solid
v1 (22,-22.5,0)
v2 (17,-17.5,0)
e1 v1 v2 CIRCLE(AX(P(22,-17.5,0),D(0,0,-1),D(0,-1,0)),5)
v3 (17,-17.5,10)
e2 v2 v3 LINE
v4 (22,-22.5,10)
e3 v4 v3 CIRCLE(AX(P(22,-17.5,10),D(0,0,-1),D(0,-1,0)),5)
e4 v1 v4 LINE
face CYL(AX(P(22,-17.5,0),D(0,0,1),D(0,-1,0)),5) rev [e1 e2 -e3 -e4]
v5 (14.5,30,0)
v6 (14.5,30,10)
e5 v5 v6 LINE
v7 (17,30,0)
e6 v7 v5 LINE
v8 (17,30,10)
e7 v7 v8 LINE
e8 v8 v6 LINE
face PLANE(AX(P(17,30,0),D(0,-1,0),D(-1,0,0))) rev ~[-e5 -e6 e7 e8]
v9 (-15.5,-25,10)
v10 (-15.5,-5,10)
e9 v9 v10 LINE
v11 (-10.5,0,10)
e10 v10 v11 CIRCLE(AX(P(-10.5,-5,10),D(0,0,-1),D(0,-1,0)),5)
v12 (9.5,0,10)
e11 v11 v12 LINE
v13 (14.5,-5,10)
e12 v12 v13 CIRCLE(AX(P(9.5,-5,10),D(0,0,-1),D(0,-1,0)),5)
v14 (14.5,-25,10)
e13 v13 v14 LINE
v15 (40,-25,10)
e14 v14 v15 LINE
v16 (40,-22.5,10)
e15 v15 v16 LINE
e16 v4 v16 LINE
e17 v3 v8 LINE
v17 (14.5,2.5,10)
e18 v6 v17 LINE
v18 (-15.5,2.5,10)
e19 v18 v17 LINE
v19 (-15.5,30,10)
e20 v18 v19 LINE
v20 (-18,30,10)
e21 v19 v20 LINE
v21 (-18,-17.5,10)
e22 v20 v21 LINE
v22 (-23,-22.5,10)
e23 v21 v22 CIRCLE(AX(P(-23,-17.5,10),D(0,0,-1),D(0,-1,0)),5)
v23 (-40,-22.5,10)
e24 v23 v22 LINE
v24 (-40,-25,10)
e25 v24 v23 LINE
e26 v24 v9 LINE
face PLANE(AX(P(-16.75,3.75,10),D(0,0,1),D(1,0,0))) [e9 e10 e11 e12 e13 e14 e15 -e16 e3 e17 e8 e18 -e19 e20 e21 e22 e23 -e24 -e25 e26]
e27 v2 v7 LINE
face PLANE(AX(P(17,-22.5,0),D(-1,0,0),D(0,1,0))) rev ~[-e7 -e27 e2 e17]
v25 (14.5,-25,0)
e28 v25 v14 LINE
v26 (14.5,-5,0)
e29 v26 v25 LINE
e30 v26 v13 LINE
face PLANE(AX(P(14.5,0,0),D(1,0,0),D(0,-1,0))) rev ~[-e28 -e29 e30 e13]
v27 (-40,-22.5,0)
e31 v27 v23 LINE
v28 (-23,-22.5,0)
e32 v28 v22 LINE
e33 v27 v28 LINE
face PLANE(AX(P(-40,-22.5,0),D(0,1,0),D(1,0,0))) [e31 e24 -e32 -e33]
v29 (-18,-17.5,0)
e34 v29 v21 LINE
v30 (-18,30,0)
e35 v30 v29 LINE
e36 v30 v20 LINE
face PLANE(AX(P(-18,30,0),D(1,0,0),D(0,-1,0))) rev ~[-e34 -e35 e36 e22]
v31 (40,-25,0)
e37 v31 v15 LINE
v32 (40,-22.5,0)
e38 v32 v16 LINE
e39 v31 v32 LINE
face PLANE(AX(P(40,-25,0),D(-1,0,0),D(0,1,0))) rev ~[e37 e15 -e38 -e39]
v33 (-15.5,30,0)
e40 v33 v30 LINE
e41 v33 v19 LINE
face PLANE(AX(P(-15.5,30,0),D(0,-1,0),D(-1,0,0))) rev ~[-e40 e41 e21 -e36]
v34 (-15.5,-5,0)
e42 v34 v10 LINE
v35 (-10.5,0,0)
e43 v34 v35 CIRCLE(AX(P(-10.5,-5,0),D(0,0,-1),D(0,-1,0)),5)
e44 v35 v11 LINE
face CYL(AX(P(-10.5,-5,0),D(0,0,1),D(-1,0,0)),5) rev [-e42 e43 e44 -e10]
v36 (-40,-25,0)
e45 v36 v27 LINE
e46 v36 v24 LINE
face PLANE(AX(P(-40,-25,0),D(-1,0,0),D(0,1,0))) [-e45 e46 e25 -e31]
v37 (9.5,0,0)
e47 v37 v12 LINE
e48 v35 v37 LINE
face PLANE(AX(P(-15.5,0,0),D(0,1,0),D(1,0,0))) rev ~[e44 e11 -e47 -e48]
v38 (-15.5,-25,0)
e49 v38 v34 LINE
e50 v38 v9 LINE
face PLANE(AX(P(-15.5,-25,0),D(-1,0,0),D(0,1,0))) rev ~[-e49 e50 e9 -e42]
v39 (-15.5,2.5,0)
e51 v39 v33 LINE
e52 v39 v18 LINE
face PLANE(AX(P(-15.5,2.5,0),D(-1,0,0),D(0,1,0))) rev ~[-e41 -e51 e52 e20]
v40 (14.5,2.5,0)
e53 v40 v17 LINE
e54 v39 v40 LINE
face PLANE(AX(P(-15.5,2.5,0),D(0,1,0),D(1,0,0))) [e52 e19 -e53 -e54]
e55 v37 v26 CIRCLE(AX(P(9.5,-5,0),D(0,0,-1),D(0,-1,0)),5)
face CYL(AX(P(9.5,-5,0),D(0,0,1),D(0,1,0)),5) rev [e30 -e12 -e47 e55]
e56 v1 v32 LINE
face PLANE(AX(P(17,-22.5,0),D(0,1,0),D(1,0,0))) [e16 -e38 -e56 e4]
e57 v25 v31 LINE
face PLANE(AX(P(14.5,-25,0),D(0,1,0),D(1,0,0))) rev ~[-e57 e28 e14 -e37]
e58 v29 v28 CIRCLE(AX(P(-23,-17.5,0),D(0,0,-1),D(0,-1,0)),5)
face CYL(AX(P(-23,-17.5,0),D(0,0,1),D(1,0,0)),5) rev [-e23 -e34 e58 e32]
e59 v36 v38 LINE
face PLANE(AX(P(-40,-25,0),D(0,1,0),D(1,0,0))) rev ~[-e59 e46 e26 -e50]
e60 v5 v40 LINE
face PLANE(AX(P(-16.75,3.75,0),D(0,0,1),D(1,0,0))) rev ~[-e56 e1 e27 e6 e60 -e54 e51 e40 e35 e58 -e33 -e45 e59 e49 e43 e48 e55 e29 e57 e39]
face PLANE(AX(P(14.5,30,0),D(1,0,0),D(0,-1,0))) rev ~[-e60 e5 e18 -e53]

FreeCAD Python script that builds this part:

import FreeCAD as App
import Part
import Sketcher


def edges_at(feature, points):
    """Names of the edges that pass closest to the given points."""
    edges = feature.Shape.Edges
    near = lambda p: min(range(len(edges)), key=lambda i: edges[i].distToShape(Part.Vertex(*p))[0])
    return sorted({f"Edge{near(p) + 1}" for p in points})

doc = App.newDocument("Part")
params = doc.addObject("Spreadsheet::Sheet", "Params")
for row, (alias, value) in enumerate([
    ("sketch1_width", "22 mm"),
    ("sketch1_width2", "30 mm"),
    ("sketch1_width3", "23 mm"),
    ("sketch1_height", "25 mm"),
    ("sketch1_width4", "2.5 mm"),
    ("pad1_length", "10 mm"),
    ("fillet_radius", "5 mm"),
], start=1):
    params.set(f"A{row}", alias)
    params.set(f"B{row}", "=" + value)
    params.setAlias(f"B{row}", alias)

body = doc.addObject("PartDesign::Body", "Body")

# Sketch on XY plane
sketch1 = body.newObject("Sketcher::SketchObject", "Sketch")
sketch1.AttachmentSupport = (doc.getObject("XY_Plane"), [""])
sketch1.MapMode = "FlatFace"
sketch1.addGeometry([
    Part.LineSegment(App.Vector(-15.5, 30, 0), App.Vector(-18, 30, 0)),  # 0
    Part.LineSegment(App.Vector(-18, 30, 0), App.Vector(-18, -22.5, 0)),  # 1
    Part.LineSegment(App.Vector(-18, -22.5, 0), App.Vector(-40, -22.5, 0)),  # 2
    Part.LineSegment(App.Vector(-40, -22.5, 0), App.Vector(-40, -25, 0)),  # 3
    Part.LineSegment(App.Vector(-40, -25, 0), App.Vector(-15.5, -25, 0)),  # 4
    Part.LineSegment(App.Vector(-15.5, -25, 0), App.Vector(-15.5, 0, 0)),  # 5
    Part.LineSegment(App.Vector(-15.5, 0, 0), App.Vector(14.5, 0, 0)),  # 6
    Part.LineSegment(App.Vector(14.5, 0, 0), App.Vector(14.5, -25, 0)),  # 7
    Part.LineSegment(App.Vector(14.5, -25, 0), App.Vector(40, -25, 0)),  # 8
    Part.LineSegment(App.Vector(40, -25, 0), App.Vector(40, -22.5, 0)),  # 9
    Part.LineSegment(App.Vector(40, -22.5, 0), App.Vector(17, -22.5, 0)),  # 10
    Part.LineSegment(App.Vector(17, -22.5, 0), App.Vector(17, 30, 0)),  # 11
    Part.LineSegment(App.Vector(17, 30, 0), App.Vector(14.5, 30, 0)),  # 12
    Part.LineSegment(App.Vector(14.5, 30, 0), App.Vector(14.5, 2.5, 0)),  # 13
    Part.LineSegment(App.Vector(14.5, 2.5, 0), App.Vector(-15.5, 2.5, 0)),  # 14
    Part.LineSegment(App.Vector(-15.5, 2.5, 0), App.Vector(-15.5, 30, 0)),  # 15
], False)
sketch1.addConstraint([
    Sketcher.Constraint("Coincident", 0, 2, 1, 1),
    Sketcher.Constraint("Coincident", 1, 2, 2, 1),
    Sketcher.Constraint("Coincident", 2, 2, 3, 1),
    Sketcher.Constraint("Coincident", 3, 2, 4, 1),
    Sketcher.Constraint("Coincident", 4, 2, 5, 1),
    Sketcher.Constraint("Coincident", 5, 2, 6, 1),
    Sketcher.Constraint("Coincident", 6, 2, 7, 1),
    Sketcher.Constraint("Coincident", 7, 2, 8, 1),
    Sketcher.Constraint("Coincident", 8, 2, 9, 1),
    Sketcher.Constraint("Coincident", 9, 2, 10, 1),
    Sketcher.Constraint("Coincident", 10, 2, 11, 1),
    Sketcher.Constraint("Coincident", 11, 2, 12, 1),
    Sketcher.Constraint("Coincident", 12, 2, 13, 1),
    Sketcher.Constraint("Coincident", 13, 2, 14, 1),
    Sketcher.Constraint("Coincident", 14, 2, 15, 1),
    Sketcher.Constraint("Coincident", 15, 2, 0, 1),
    Sketcher.Constraint("Horizontal", 0),
    Sketcher.Constraint("Vertical", 1),
    Sketcher.Constraint("Horizontal", 2),
    Sketcher.Constraint("Vertical", 3),
    Sketcher.Constraint("Horizontal", 4),
    Sketcher.Constraint("Vertical", 5),
    Sketcher.Constraint("Horizontal", 6),
    Sketcher.Constraint("Vertical", 7),
    Sketcher.Constraint("Horizontal", 8),
    Sketcher.Constraint("Vertical", 9),
    Sketcher.Constraint("Horizontal", 10),
    Sketcher.Constraint("Vertical", 11),
    Sketcher.Constraint("Horizontal", 12),
    Sketcher.Constraint("Vertical", 13),
    Sketcher.Constraint("Horizontal", 14),
    Sketcher.Constraint("Vertical", 15),
    Sketcher.Constraint("Symmetric", 3, 2, 8, 2, -2),
    Sketcher.Constraint("PointOnObject", 5, 2, -1),
    Sketcher.Constraint("Horizontal", 2, 2, 9, 2),
    Sketcher.Constraint("Horizontal", 0, 2, 11, 2),
    Sketcher.Constraint("Vertical", 7, 2, 12, 2),
    Sketcher.Constraint("Vertical", 5, 2, 14, 2),
    Sketcher.Constraint("Equal", 0, 12),
    Sketcher.Constraint("Equal", 12, 3),
    Sketcher.Constraint("DistanceX", 2, 2, 2, 1, 22.0),
    Sketcher.Constraint("DistanceX", 6, 1, 6, 2, 30.0),
    Sketcher.Constraint("DistanceX", 10, 2, 10, 1, 23.0),
    Sketcher.Constraint("DistanceY", 5, 1, 5, 2, 25.0),
    Sketcher.Constraint("DistanceX", 0, 2, 0, 1, 2.5),
    Sketcher.Constraint("DistanceY", 1, 2, 1, 1, 52.5),
    Sketcher.Constraint("DistanceY", 13, 2, 13, 1, 27.5),
])
sketch1.setExpression("Constraints[40]", "Params.sketch1_width")
sketch1.setExpression("Constraints[41]", "Params.sketch1_width2")
sketch1.setExpression("Constraints[42]", "Params.sketch1_width3")
sketch1.setExpression("Constraints[43]", "Params.sketch1_height")
sketch1.setExpression("Constraints[44]", "Params.sketch1_width4")
pad1 = body.newObject("PartDesign::Pad", "Pad")
pad1.Profile = sketch1
pad1.setExpression("Length", "Params.pad1_length")
doc.recompute()

fillet = body.newObject("PartDesign::Fillet", "Fillet")
fillet.Base = (pad1, edges_at(pad1, [
    (-18, -22.5, 5),
    (17, -22.5, 5),
    (14.5, 0, 5),
    (-15.5, 0, 5),
]))
fillet.setExpression("Radius", "Params.fillet_radius")

doc.recompute()
